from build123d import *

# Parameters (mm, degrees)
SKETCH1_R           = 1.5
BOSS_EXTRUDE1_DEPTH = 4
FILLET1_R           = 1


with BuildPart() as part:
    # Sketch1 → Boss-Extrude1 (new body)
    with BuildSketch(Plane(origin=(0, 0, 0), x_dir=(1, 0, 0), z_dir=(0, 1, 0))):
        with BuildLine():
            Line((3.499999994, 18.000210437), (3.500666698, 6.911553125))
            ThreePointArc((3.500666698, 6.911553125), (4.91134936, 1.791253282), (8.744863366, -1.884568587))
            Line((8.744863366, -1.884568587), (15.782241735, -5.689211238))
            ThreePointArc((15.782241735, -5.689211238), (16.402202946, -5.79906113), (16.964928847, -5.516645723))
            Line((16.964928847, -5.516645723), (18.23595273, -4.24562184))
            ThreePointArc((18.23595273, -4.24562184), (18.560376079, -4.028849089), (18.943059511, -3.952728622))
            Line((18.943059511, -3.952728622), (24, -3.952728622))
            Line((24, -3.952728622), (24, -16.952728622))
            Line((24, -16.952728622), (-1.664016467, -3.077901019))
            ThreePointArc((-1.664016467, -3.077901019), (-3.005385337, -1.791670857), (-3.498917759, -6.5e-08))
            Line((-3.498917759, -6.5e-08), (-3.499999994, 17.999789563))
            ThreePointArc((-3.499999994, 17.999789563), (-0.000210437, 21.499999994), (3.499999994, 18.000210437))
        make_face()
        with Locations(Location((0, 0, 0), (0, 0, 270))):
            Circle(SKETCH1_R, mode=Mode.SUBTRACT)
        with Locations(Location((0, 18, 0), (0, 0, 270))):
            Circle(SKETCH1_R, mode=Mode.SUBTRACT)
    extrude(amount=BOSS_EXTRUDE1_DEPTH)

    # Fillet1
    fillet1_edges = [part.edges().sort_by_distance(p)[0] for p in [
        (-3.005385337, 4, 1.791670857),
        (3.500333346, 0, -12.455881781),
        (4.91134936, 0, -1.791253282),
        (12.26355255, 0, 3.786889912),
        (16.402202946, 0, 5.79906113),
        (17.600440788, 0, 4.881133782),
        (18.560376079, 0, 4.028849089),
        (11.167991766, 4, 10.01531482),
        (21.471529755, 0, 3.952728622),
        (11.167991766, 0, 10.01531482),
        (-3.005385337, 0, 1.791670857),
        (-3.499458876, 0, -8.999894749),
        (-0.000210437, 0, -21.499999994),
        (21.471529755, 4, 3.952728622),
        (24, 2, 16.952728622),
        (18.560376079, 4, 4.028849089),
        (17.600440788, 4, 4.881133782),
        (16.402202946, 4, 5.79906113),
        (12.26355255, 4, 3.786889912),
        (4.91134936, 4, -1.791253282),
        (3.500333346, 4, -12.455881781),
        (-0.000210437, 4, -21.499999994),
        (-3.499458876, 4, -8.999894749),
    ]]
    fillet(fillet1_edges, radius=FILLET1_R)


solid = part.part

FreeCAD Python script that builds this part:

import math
import FreeCAD as App
import Part
import Sketcher
Q = App.Units.Quantity


def edges_at(feature, points):
    """Names of the edges that pass closest to the given points."""
    edges = feature.Shape.Edges
    near = lambda p: min(range(len(edges)), key=lambda i: edges[i].distToShape(Part.Vertex(*p))[0])
    return sorted({f"Edge{near(p) + 1}" for p in points})

doc = App.newDocument("Part")
params = doc.addObject("Spreadsheet::Sheet", "Params")
for row, (alias, value) in enumerate([
    ("sketch1_diameter", "3 mm"),
    ("sketch1_radius", "1 mm"),
    ("sketch1_radius2", "10 mm"),
    ("sketch1_radius3", "3.5 mm"),
    ("sketch1_height", "13 mm"),
    ("pad1_length", "4 mm"),
    ("fillet_radius", "1 mm"),
], start=1):
    params.set(f"A{row}", alias)
    params.set(f"B{row}", "=" + value)
    params.setAlias(f"B{row}", alias)

body = doc.addObject("PartDesign::Body", "Body")

# Sketch on XZ plane
sketch1 = doc.addObject("Sketcher::SketchObject", "Sketch")
body.addObject(sketch1)
sketch1.AttachmentSupport = (doc.XZ_Plane, [""])
sketch1.MapMode = "FlatFace"
sketch1.addGeometry([
    Part.LineSegment(App.Vector(3.500667, -6.911553, 0), App.Vector(3.5, -18.00021, 0)),  # 0
    Part.ArcOfCircle(Part.Circle(App.Vector(0, -18, 0), App.Vector(0, 0, 1), 3.5), math.radians(179.996555), math.radians(359.996555)),  # 1
    Part.LineSegment(App.Vector(-3.5, -17.99979, 0), App.Vector(-3.498918, 0, 0)),  # 2
    Part.ArcOfCircle(Part.Circle(App.Vector(0, 0, 0), App.Vector(0, 0, 1), 3.498918), math.radians(118.397142), math.radians(179.999999)),  # 3
    Part.LineSegment(App.Vector(-1.664016, 3.077901, 0), App.Vector(24, 16.952729, 0)),  # 4
    Part.LineSegment(App.Vector(24, 16.952729, 0), App.Vector(24, 3.952729, 0)),  # 5
    Part.LineSegment(App.Vector(24, 3.952729, 0), App.Vector(18.94306, 3.952729, 0)),  # 6
    Part.ArcOfCircle(Part.Circle(App.Vector(18.94306, 4.952729, 0), App.Vector(0, 0, 1), 1), math.radians(-135), math.radians(-90)),  # 7
    Part.LineSegment(App.Vector(18.235953, 4.245622, 0), App.Vector(16.964929, 5.516646, 0)),  # 8
    Part.ArcOfCircle(Part.Circle(App.Vector(16.257822, 4.809539, 0), App.Vector(0, 0, 1), 1), math.radians(45), math.radians(118.397142)),  # 9
    Part.LineSegment(App.Vector(15.782242, 5.689211, 0), App.Vector(8.744863, 1.884569, 0)),  # 10
    Part.ArcOfCircle(Part.Circle(App.Vector(13.500667, -6.912154, 0), App.Vector(0, 0, 1), 10), math.radians(118.397142), math.radians(179.996555)),  # 11
    Part.Circle(App.Vector(0, 0, 0), App.Vector(0, 0, 1), 1.5),  # 12
    Part.Circle(App.Vector(0, -18, 0), App.Vector(0, 0, 1), 1.5),  # 13
], False)
sketch1.addConstraint([
    Sketcher.Constraint("Tangent", 0, 2, 1, 2),
    Sketcher.Constraint("Tangent", 1, 1, 2, 1),
    Sketcher.Constraint("Coincident", 2, 2, 3, 2),
    Sketcher.Constraint("Tangent", 3, 1, 4, 1),
    Sketcher.Constraint("Coincident", 4, 2, 5, 1),
    Sketcher.Constraint("Coincident", 5, 2, 6, 1),
    Sketcher.Constraint("Tangent", 6, 2, 7, 2),
    Sketcher.Constraint("Tangent", 7, 1, 8, 1),
    Sketcher.Constraint("Tangent", 8, 2, 9, 1),
    Sketcher.Constraint("Tangent", 9, 2, 10, 1),
    Sketcher.Constraint("Tangent", 10, 2, 11, 1),
    Sketcher.Constraint("Tangent", 11, 2, 0, 1),
    Sketcher.Constraint("Vertical", 5),
    Sketcher.Constraint("Horizontal", 6),
    Sketcher.Constraint("Coincident", 3, 3, -1, 1),
    Sketcher.Constraint("Coincident", 12, 3, -1, 1),
    Sketcher.Constraint("Coincident", 13, 3, 1, 3),
    Sketcher.Constraint("Equal", 7, 9),
    Sketcher.Constraint("Equal", 12, 13),
    Sketcher.Constraint("PointOnObject", 1, 3, -2),
    Sketcher.Constraint("PointOnObject", 2, 2, -1),
    Sketcher.Constraint("Parallel", 0, 2),
    Sketcher.Constraint("Parallel", 4, 10),
    Sketcher.Constraint("Diameter", 12, 3.0),
    Sketcher.Constraint("Radius", 7, 1.0),
    Sketcher.Constraint("Radius", 11, 10.0),
    Sketcher.Constraint("Radius", 1, 3.5),
    Sketcher.Constraint("DistanceY", 5, 2, 5, 1, 13.0),
    Sketcher.Constraint("Angle", 8, Q("135 deg")),
    Sketcher.Constraint("Distance", 10, 8.0),
    Sketcher.Constraint("DistanceY", 1, 3, -1, 1, 18.0),
    Sketcher.Constraint("DistanceX", -1, 1, 4, 2, 24.0),
    Sketcher.Constraint("Radius", 3, 3.498918),
    Sketcher.Constraint("Distance", 8, 1.797499),
    Sketcher.Constraint("DistanceX", 6, 2, 6, 1, 5.05694),
])
sketch1.setExpression("Constraints[23]", "Params.sketch1_diameter")
sketch1.setExpression("Constraints[24]", "Params.sketch1_radius")
sketch1.setExpression("Constraints[25]", "Params.sketch1_radius2")
sketch1.setExpression("Constraints[26]", "Params.sketch1_radius3")
sketch1.setExpression("Constraints[27]", "Params.sketch1_height")
pad1 = doc.addObject("PartDesign::Pad", "Pad")
body.addObject(pad1)
pad1.Profile = sketch1
pad1.setExpression("Length", "Params.pad1_length")
pad1.Reversed = True
doc.recompute()

fillet = doc.addObject("PartDesign::Fillet", "Fillet")
body.addObject(fillet)
fillet.Base = (pad1, edges_at(pad1, [
    (-3.005, 4, 1.792),
    (3.5, 0, -12.456),
    (4.911, 0, -1.791),
    (12.264, 0, 3.787),
    (16.402, 0, 5.799),
    (17.6, 0, 4.881),
    (18.56, 0, 4.029),
    (11.168, 4, 10.015),
    (21.472, 0, 3.953),
    (11.168, 0, 10.015),
    (-3.005, 0, 1.792),
    (-3.499, 0, -9),
    (0, 0, -21.5),
    (21.472, 4, 3.953),
    (24, 2, 16.953),
    (18.56, 4, 4.029),
    (17.6, 4, 4.881),
    (16.402, 4, 5.799),
    (12.264, 4, 3.787),
    (4.911, 4, -1.791),
    (3.5, 4, -12.456),
    (0, 4, -21.5),
    (-3.499, 4, -9),
]))
fillet.setExpression("Radius", "Params.fillet_radius")

doc.recompute()
